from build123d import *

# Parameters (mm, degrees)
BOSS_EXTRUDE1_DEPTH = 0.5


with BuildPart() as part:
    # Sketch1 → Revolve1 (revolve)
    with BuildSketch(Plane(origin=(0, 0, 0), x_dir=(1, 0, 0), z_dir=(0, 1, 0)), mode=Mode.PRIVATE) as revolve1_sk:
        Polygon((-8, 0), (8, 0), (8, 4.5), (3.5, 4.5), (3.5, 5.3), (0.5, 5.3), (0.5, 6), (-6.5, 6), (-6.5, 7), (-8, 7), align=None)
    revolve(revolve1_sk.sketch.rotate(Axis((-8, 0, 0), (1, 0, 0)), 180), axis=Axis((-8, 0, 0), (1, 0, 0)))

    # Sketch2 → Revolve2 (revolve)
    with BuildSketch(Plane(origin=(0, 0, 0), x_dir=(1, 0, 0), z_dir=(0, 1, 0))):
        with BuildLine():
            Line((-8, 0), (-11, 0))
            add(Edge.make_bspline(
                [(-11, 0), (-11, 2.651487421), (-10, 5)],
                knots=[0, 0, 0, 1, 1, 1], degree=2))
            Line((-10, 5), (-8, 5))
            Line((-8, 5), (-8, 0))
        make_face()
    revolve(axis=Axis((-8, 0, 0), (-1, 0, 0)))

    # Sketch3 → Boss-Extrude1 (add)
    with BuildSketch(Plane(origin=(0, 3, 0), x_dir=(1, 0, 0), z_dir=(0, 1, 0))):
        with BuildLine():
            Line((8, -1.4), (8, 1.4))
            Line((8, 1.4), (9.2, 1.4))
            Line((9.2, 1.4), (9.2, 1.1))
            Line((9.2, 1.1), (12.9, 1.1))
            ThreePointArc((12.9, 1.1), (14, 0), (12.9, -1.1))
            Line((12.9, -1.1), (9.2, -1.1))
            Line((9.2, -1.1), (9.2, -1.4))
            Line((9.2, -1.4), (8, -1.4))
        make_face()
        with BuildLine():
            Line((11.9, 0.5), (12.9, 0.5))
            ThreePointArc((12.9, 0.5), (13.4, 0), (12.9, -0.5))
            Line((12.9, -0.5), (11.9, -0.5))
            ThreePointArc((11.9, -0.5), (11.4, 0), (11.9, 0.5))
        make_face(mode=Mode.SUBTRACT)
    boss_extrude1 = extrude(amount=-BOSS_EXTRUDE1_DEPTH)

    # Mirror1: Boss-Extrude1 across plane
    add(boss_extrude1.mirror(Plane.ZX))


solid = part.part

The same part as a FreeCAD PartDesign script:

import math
import FreeCAD as App
import Part
import Sketcher
Q = App.Units.Quantity


def add_polygon(sketch, points):
    """Adds a closed chain of lines whose ends are joined by coincident constraints."""
    first, n = sketch.GeometryCount, len(points)
    for a, b in zip(points, points[1:] + points[:1]):
        sketch.addGeometry(Part.LineSegment(App.Vector(*a, 0), App.Vector(*b, 0)), False)
    for i in range(n):
        sketch.addConstraint(Sketcher.Constraint("Coincident", first + i, 2, first + (i + 1) % n, 1))

doc = App.newDocument("Part")
body = doc.addObject("PartDesign::Body", "Body")

# Sketch on XZ plane
sketch1 = body.newObject("Sketcher::SketchObject", "Sketch")
sketch1.AttachmentSupport = (doc.getObject("XZ_Plane"), [""])
sketch1.MapMode = "FlatFace"
add_polygon(sketch1, [(-8, 0), (8, 0), (8, -4.5), (3.5, -4.5), (3.5, -5.3), (0.5, -5.3), (0.5, -6), (-6.5, -6), (-6.5, -7), (-8, -7)])  # lines 0-9
sketch1.addConstraint([
    Sketcher.Constraint("Horizontal", 0),
    Sketcher.Constraint("Vertical", 1),
    Sketcher.Constraint("Horizontal", 2),
    Sketcher.Constraint("Vertical", 3),
    Sketcher.Constraint("Horizontal", 4),
    Sketcher.Constraint("Vertical", 5),
    Sketcher.Constraint("Horizontal", 6),
    Sketcher.Constraint("Vertical", 7),
    Sketcher.Constraint("Horizontal", 8),
    Sketcher.Constraint("Vertical", 9),
    Sketcher.Constraint("Symmetric", 0, 2, 9, 2, -1, 1),
    Sketcher.Constraint("Equal", 2, 1),
    Sketcher.Constraint("Equal", 6, 9),
    Sketcher.Constraint("DistanceX", 0, 1, 0, 2, Q("16 mm")),
    Sketcher.Constraint("DistanceX", 4, 2, 4, 1, Q("3 mm")),
    Sketcher.Constraint("DistanceX", 6, 2, 6, 1, Q("7 mm")),
    Sketcher.Constraint("DistanceY", 7, 2, 7, 1, Q("1 mm")),
    Sketcher.Constraint("DistanceX", 2, 2, 2, 1, Q("4.5 mm")),
    Sketcher.Constraint("DistanceY", 3, 2, 3, 1, Q("0.8 mm")),
])
revolution = body.newObject("PartDesign::Revolution", "Revolution")
revolution.Profile = sketch1
revolution.ReferenceAxis = (sketch1, ["H_Axis"])
revolution.Angle = 360

# Sketch on XZ plane
sketch2 = body.newObject("Sketcher::SketchObject", "Sketch001")
sketch2.AttachmentSupport = (doc.getObject("XZ_Plane"), [""])
sketch2.MapMode = "FlatFace"
sketch2.addGeometry([
    Part.LineSegment(App.Vector(-11, 0, 0), App.Vector(-8, 0, 0)),
    Part.LineSegment(App.Vector(-8, 0, 0), App.Vector(-8, -5, 0)),
    Part.LineSegment(App.Vector(-8, -5, 0), App.Vector(-10, -5, 0)),
    Part.BSplineCurve([App.Vector(-11, 0, 0), App.Vector(-11, -2.651487, 0), App.Vector(-10, -5, 0)], [3, 3], [0, 1], False, 2, [1, 1, 1], False),
], False)
sketch2.addConstraint([
    Sketcher.Constraint("Block", 3),
    Sketcher.Constraint("Coincident", 0, 2, 1, 1),
    Sketcher.Constraint("Coincident", 1, 2, 2, 1),
    Sketcher.Constraint("Coincident", 2, 2, 3, 2),
    Sketcher.Constraint("Coincident", 3, 1, 0, 1),
    Sketcher.Constraint("Horizontal", 0),
    Sketcher.Constraint("Vertical", 1),
    Sketcher.Constraint("Horizontal", 2),
    Sketcher.Constraint("DistanceX", 0, 1, 0, 2, Q("3 mm")),
])
revolution2 = body.newObject("PartDesign::Revolution", "Revolution001")
revolution2.Profile = sketch2
revolution2.ReferenceAxis = (sketch2, ["H_Axis"])
revolution2.Angle = 360

# Sketch on XZ plane
sketch3 = body.newObject("Sketcher::SketchObject", "Sketch002")
sketch3.AttachmentSupport = (doc.getObject("XZ_Plane"), [""])
sketch3.MapMode = "FlatFace"
sketch3.AttachmentOffset = App.Placement(App.Vector(0, 0, -3), App.Rotation())
sketch3.addGeometry([
    Part.LineSegment(App.Vector(8, -1.4, 0), App.Vector(8, 1.4, 0)),  # 0
    Part.LineSegment(App.Vector(8, 1.4, 0), App.Vector(9.2, 1.4, 0)),  # 1
    Part.LineSegment(App.Vector(9.2, 1.4, 0), App.Vector(9.2, 1.1, 0)),  # 2
    Part.LineSegment(App.Vector(9.2, 1.1, 0), App.Vector(12.9, 1.1, 0)),  # 3
    Part.ArcOfCircle(Part.Circle(App.Vector(12.9, 0, 0), App.Vector(0, 0, 1), 1.1), math.radians(-90), math.radians(90)),  # 4
    Part.LineSegment(App.Vector(12.9, -1.1, 0), App.Vector(9.2, -1.1, 0)),  # 5
    Part.LineSegment(App.Vector(9.2, -1.1, 0), App.Vector(9.2, -1.4, 0)),  # 6
    Part.LineSegment(App.Vector(9.2, -1.4, 0), App.Vector(8, -1.4, 0)),  # 7
    Part.LineSegment(App.Vector(11.9, -0.5, 0), App.Vector(12.9, -0.5, 0)),  # 8
    Part.ArcOfCircle(Part.Circle(App.Vector(12.9, 0, 0), App.Vector(0, 0, 1), 0.5), math.radians(-90), math.radians(90)),  # 9
    Part.LineSegment(App.Vector(12.9, 0.5, 0), App.Vector(11.9, 0.5, 0)),  # 10
    Part.ArcOfCircle(Part.Circle(App.Vector(11.9, 0, 0), App.Vector(0, 0, 1), 0.5), math.radians(90), math.radians(270)),  # 11
], False)
sketch3.addConstraint([
    Sketcher.Constraint("Coincident", 0, 2, 1, 1),
    Sketcher.Constraint("Coincident", 1, 2, 2, 1),
    Sketcher.Constraint("Coincident", 2, 2, 3, 1),
    Sketcher.Constraint("Tangent", 3, 2, 4, 2),
    Sketcher.Constraint("Tangent", 4, 1, 5, 1),
    Sketcher.Constraint("Coincident", 5, 2, 6, 1),
    Sketcher.Constraint("Coincident", 6, 2, 7, 1),
    Sketcher.Constraint("Coincident", 7, 2, 0, 1),
    Sketcher.Constraint("Tangent", 8, 2, 9, 1),
    Sketcher.Constraint("Tangent", 9, 2, 10, 1),
    Sketcher.Constraint("Tangent", 10, 2, 11, 1),
    Sketcher.Constraint("Tangent", 11, 2, 8, 1),
    Sketcher.Constraint("Vertical", 0),
    Sketcher.Constraint("Horizontal", 1),
    Sketcher.Constraint("Vertical", 2),
    Sketcher.Constraint("Horizontal", 3),
    Sketcher.Constraint("Horizontal", 5),
    Sketcher.Constraint("Vertical", 6),
    Sketcher.Constraint("Horizontal", 7),
    Sketcher.Constraint("Horizontal", 8),
    Sketcher.Constraint("Horizontal", 10),
    Sketcher.Constraint("Coincident", 9, 3, 4, 3),
    Sketcher.Constraint("Symmetric", 2, 2, 5, 2, -1),
    Sketcher.Constraint("Equal", 2, 6),
    Sketcher.Constraint("Radius", 4, Q("1.1 mm")),
    Sketcher.Constraint("Radius", 9, Q("0.5 mm")),
    Sketcher.Constraint("DistanceX", 8, 1, 8, 2, Q("1 mm")),
    Sketcher.Constraint("DistanceX", 1, 1, 1, 2, Q("1.2 mm")),
    Sketcher.Constraint("DistanceX", 3, 1, 3, 2, Q("3.7 mm")),
    Sketcher.Constraint("DistanceY", 0, 1, 0, 2, Q("2.8 mm")),
    Sketcher.Constraint("DistanceX", -1, 1, 0, 2, Q("8 mm")),
])
pad1 = body.newObject("PartDesign::Pad", "Pad")
pad1.Profile = sketch3
pad1.Length = 0.5
doc.recompute()

mirrored = body.newObject("PartDesign::Mirrored", "Mirrored")
mirrored.Originals = [pad1]
mirrored.MirrorPlane = (doc.getObject("XZ_Plane"), [""])
body.Tip = mirrored

doc.recompute()
